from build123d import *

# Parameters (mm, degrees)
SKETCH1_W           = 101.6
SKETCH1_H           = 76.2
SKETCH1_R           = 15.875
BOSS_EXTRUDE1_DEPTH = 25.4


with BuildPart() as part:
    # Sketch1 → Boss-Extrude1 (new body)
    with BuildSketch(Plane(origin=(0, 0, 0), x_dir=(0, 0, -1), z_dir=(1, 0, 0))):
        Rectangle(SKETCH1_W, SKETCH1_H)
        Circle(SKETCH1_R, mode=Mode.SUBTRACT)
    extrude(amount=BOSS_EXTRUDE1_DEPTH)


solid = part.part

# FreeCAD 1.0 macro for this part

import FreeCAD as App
import Part
import Sketcher

V = App.Vector
Q = App.Units.Quantity

doc = App.newDocument("Part")
body = doc.addObject("PartDesign::Body", "Body")

# Sketch on YZ plane
sketch1 = body.newObject("Sketcher::SketchObject", "Sketch")
sketch1.AttachmentSupport = (doc.getObject("YZ_Plane"), [""])
sketch1.MapMode = "FlatFace"
sketch1.addGeometry([
    Part.LineSegment(V(38, 51, 0), V(-38, 51, 0)),  # 0
    Part.LineSegment(V(-38, 51, 0), V(-38, -51, 0)),  # 1
    Part.LineSegment(V(-38, -51, 0), V(38, -51, 0)),  # 2
    Part.LineSegment(V(38, -51, 0), V(38, 51, 0)),  # 3
    Part.Circle(V(0, 0, 0), V(0, 0, 1), 16),  # 4
], False)
sketch1.addConstraint([
    Sketcher.Constraint("Coincident", 0, 2, 1, 1),
    Sketcher.Constraint("Coincident", 1, 2, 2, 1),
    Sketcher.Constraint("Coincident", 2, 2, 3, 1),
    Sketcher.Constraint("Coincident", 3, 2, 0, 1),
    Sketcher.Constraint("Horizontal", 0),
    Sketcher.Constraint("Vertical", 1),
    Sketcher.Constraint("Horizontal", 2),
    Sketcher.Constraint("Vertical", 3),
    Sketcher.Constraint("Coincident", 4, 3, -1, 1),
    Sketcher.Constraint("Symmetric", 0, 2, 2, 2, -1, 1),
    Sketcher.Constraint("Diameter", 4, Q("1.25 in")),
    Sketcher.Constraint("DistanceX", 0, 2, 0, 1, Q("3 in")),
    Sketcher.Constraint("DistanceY", 1, 2, 1, 1, Q("4 in")),
])
pad1 = body.newObject("PartDesign::Pad", "Pad")
pad1.Profile = sketch1
pad1.Length = Q("1 in")

doc.recompute()
